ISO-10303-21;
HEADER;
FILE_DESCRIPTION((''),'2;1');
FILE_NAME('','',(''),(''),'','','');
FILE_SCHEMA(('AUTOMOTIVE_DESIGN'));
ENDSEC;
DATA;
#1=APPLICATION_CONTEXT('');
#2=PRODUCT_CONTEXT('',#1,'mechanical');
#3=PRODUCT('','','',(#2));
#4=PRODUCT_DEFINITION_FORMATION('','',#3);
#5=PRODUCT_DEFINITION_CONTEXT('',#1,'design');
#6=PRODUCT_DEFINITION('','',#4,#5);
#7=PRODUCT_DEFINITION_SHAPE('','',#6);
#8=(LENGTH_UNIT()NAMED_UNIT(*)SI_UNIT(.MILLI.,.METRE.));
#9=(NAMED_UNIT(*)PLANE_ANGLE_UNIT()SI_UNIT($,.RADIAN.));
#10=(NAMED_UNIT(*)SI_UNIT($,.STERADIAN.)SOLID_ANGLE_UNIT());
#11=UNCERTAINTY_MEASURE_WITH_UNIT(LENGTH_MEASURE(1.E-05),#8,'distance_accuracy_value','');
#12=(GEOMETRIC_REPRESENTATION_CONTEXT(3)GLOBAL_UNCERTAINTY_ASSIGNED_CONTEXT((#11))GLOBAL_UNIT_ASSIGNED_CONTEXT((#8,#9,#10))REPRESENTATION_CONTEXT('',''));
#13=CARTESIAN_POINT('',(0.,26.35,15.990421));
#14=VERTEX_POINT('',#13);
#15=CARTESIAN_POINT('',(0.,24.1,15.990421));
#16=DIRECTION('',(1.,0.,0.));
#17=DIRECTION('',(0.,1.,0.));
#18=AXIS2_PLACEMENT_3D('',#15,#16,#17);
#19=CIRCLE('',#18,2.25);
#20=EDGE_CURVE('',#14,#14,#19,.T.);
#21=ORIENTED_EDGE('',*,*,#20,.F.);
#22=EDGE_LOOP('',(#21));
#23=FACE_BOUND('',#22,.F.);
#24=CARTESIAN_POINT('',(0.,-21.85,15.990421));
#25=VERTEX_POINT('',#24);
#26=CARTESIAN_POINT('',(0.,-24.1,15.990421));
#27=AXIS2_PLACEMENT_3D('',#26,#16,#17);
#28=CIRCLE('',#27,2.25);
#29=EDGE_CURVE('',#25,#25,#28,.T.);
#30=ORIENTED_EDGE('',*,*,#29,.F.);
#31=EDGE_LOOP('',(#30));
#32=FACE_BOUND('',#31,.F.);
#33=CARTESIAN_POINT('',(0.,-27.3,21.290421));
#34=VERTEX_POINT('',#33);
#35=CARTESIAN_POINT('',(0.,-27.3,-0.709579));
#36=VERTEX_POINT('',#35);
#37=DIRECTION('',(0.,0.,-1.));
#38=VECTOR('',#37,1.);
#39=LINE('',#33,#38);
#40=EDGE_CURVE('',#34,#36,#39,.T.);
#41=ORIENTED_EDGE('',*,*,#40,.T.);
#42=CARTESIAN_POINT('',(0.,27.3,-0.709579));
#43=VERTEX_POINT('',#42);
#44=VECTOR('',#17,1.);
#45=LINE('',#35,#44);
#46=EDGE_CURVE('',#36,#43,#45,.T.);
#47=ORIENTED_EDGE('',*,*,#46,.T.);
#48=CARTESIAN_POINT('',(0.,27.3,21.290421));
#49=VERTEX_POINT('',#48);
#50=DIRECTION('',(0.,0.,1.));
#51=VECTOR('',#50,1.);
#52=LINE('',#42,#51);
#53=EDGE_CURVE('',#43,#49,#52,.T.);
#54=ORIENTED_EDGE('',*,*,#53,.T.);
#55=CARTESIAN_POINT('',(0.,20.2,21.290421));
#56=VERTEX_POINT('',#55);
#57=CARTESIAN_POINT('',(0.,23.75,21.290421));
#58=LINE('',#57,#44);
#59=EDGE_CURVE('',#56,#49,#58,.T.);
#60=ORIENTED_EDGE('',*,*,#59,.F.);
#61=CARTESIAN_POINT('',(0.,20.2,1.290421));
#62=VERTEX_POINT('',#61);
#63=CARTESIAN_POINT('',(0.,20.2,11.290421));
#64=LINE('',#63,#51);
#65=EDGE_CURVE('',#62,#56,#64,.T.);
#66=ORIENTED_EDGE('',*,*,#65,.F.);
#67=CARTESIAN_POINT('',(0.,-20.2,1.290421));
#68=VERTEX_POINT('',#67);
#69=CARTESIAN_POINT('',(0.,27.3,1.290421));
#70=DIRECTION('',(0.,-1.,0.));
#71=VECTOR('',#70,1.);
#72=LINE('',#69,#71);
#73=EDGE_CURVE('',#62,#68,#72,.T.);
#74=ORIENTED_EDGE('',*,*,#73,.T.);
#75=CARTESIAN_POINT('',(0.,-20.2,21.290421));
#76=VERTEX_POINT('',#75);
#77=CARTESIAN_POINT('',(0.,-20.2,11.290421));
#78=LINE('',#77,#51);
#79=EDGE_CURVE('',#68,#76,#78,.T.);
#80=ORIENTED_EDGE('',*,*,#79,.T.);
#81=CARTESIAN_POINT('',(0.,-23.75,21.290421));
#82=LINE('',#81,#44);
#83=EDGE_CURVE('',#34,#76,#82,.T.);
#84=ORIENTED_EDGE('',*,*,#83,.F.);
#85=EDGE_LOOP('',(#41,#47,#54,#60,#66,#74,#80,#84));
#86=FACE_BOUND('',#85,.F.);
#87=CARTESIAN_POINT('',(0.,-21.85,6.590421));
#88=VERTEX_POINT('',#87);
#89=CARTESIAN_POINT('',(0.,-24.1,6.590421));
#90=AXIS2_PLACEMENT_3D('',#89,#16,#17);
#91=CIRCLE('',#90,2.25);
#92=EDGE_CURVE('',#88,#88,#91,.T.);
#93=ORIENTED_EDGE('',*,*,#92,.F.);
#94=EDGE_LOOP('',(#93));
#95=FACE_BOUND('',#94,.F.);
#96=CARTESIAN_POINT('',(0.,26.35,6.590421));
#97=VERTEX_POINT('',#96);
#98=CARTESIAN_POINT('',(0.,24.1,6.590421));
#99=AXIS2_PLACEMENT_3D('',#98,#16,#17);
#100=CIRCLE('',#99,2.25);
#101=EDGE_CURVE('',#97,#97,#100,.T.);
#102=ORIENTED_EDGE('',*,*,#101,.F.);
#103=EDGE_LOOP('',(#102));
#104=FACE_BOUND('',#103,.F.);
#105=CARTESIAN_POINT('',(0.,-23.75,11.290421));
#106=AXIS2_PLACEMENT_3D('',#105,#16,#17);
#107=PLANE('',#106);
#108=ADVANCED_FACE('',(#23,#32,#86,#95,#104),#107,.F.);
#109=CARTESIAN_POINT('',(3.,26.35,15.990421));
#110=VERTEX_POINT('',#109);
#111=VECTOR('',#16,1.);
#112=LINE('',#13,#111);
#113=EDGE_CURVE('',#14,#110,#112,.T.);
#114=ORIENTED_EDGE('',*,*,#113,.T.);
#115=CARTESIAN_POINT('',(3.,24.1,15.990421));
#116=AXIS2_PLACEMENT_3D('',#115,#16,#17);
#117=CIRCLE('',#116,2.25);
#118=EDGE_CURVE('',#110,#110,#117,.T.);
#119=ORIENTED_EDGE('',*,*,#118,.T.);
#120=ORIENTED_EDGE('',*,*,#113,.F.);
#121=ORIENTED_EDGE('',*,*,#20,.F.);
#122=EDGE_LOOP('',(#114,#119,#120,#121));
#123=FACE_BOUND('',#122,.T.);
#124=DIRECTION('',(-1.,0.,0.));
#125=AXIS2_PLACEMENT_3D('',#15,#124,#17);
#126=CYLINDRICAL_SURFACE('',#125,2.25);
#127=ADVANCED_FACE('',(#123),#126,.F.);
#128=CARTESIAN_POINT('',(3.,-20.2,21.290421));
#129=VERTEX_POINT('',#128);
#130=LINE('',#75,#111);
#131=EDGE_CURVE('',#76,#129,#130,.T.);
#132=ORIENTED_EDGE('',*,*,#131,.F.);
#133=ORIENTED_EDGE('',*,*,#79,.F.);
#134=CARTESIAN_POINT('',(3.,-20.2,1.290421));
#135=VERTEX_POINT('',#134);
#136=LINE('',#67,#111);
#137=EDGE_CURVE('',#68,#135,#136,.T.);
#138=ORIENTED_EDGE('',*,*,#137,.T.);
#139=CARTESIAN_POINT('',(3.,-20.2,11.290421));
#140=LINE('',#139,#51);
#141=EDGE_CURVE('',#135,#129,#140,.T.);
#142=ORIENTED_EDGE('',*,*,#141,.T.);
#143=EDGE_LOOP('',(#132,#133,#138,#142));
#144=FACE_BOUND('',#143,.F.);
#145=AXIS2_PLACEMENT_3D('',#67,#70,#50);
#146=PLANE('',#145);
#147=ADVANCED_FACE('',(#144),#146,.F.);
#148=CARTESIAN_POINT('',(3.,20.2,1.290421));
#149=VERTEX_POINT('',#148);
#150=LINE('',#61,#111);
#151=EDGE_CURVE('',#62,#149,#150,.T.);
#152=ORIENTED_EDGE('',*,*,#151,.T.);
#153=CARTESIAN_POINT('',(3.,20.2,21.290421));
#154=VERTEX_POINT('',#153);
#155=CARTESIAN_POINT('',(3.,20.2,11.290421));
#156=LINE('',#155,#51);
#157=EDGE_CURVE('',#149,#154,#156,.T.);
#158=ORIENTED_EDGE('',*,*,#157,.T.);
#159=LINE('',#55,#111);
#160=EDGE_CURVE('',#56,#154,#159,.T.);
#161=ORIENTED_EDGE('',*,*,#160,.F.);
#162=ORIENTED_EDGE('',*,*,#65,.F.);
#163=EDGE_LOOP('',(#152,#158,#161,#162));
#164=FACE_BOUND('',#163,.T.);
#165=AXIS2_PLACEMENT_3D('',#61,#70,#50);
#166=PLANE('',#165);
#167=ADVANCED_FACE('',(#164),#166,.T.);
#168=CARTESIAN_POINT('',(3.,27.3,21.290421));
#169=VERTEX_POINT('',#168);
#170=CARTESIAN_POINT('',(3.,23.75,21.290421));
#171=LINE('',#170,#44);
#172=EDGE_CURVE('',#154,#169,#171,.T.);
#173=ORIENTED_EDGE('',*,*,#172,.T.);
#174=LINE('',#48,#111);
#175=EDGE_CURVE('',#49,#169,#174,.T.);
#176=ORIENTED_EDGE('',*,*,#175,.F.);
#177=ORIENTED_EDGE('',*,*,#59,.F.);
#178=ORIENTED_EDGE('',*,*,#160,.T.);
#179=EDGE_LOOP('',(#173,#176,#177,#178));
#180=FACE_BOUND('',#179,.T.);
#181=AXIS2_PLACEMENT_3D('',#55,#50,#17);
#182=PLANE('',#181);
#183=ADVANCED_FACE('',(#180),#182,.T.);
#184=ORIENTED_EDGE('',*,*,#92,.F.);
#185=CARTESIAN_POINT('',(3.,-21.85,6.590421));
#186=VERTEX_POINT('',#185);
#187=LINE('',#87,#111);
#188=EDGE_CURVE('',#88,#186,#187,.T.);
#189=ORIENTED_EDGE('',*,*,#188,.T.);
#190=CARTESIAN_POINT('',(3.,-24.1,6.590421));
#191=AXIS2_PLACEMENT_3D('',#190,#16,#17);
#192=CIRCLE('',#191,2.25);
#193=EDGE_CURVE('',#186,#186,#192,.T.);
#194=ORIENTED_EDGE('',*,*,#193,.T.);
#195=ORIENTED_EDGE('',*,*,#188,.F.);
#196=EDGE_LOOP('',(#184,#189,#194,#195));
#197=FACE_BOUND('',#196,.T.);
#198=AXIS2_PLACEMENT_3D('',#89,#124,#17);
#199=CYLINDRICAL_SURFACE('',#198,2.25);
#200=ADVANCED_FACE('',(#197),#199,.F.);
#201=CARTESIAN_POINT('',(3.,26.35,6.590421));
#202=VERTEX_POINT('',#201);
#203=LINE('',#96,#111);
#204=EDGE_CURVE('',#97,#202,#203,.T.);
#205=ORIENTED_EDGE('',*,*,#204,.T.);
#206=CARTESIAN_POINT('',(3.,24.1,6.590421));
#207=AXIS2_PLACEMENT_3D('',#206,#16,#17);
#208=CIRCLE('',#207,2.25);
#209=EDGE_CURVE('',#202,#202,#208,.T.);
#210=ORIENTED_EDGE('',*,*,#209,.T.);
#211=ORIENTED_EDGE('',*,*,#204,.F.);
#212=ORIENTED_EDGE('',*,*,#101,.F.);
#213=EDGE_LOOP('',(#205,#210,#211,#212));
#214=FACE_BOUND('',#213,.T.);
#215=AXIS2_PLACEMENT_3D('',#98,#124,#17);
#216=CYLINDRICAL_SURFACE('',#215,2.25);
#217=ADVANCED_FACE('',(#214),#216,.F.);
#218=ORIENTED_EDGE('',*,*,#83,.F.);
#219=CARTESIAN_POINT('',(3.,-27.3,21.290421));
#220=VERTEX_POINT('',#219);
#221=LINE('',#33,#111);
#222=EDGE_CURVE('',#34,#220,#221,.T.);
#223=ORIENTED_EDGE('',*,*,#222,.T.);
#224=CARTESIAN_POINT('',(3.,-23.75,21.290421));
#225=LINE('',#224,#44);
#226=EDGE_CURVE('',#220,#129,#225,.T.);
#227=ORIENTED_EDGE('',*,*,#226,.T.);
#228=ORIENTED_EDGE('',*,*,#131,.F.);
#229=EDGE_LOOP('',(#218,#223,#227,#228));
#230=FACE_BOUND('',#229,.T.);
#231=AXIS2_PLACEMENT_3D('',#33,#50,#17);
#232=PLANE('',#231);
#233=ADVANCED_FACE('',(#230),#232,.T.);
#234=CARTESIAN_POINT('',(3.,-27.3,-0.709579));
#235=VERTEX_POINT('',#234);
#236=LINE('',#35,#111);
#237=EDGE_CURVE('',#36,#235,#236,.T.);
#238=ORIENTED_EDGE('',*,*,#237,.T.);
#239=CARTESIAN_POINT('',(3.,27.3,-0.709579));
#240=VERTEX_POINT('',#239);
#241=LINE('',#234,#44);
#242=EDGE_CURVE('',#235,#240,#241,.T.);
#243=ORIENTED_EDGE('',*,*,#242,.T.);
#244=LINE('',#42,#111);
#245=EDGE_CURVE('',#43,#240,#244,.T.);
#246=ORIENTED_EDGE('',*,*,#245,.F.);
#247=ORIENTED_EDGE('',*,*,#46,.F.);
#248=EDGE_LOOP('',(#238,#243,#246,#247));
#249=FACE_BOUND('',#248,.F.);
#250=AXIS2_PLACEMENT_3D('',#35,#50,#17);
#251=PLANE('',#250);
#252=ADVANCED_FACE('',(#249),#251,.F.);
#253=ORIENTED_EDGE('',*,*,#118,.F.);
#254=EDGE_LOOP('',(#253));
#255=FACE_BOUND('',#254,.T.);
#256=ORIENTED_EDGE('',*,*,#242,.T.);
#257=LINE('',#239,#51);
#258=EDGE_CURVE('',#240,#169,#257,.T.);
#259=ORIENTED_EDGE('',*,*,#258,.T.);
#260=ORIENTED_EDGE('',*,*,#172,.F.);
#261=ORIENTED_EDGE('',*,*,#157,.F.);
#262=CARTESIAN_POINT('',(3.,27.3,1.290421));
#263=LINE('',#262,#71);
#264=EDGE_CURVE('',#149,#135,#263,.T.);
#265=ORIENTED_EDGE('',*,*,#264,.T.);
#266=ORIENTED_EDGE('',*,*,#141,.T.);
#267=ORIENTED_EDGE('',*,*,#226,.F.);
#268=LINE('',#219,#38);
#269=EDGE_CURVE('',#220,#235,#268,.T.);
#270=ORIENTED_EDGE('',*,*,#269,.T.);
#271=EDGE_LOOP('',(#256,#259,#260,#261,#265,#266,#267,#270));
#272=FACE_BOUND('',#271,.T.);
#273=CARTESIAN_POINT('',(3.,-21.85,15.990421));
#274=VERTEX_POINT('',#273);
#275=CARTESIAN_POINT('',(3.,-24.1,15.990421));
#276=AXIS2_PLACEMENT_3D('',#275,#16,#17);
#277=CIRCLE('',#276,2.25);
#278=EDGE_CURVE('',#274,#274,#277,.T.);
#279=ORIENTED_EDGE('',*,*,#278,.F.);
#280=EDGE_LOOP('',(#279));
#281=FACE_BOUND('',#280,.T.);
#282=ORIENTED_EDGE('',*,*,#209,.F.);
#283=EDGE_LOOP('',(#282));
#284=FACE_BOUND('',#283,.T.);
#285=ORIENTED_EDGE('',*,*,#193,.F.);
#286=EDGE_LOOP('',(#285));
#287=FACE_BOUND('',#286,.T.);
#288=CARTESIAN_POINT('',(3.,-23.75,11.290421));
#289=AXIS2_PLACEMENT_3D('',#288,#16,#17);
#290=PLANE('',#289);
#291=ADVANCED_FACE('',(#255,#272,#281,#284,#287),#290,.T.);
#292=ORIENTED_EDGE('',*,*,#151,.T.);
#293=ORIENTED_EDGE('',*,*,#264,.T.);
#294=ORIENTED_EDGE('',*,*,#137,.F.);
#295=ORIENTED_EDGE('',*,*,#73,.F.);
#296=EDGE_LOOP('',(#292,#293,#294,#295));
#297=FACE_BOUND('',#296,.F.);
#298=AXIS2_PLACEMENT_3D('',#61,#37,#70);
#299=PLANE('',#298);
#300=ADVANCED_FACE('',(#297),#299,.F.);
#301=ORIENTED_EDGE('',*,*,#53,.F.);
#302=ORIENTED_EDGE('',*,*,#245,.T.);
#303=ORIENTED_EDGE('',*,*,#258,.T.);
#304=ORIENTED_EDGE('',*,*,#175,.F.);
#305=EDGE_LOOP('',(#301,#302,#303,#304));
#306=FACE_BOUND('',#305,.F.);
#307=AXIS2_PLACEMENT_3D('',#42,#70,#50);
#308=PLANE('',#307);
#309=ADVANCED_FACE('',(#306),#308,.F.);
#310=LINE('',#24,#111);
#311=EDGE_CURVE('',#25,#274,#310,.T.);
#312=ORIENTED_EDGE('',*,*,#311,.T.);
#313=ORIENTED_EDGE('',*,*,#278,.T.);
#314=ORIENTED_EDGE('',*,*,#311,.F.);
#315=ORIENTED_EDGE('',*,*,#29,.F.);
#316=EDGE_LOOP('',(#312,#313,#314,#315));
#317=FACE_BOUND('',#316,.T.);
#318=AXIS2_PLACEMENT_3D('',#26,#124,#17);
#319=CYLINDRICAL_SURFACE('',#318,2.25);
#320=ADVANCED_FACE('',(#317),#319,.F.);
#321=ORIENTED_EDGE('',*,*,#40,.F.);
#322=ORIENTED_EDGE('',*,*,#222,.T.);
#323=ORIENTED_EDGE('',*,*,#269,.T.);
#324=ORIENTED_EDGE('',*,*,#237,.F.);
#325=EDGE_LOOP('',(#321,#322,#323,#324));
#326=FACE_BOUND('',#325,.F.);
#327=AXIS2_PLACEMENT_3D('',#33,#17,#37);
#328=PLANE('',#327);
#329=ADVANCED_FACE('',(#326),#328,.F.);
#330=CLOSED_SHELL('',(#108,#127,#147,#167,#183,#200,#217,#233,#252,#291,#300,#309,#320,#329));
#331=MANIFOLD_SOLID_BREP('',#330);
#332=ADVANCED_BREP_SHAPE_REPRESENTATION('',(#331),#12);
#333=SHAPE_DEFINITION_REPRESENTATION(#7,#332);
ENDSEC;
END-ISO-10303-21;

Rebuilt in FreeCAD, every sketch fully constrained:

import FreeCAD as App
import Part
import Sketcher

doc = App.newDocument("Part")
params = doc.addObject("Spreadsheet::Sheet", "Params")
for row, (alias, value) in enumerate([
    ("sketch1_diameter", "4.5 mm"),
    ("sketch1_height", "22 mm"),
    ("sketch1_height2", "20 mm"),
    ("sketch1_width", "54.6 mm"),
    ("sketch1_width2", "7.1 mm"),
    ("pad1_length", "3 mm"),
], start=1):
    params.set(f"A{row}", alias)
    params.set(f"B{row}", "=" + value)
    params.setAlias(f"B{row}", alias)

body = doc.addObject("PartDesign::Body", "Body")

# Sketch on YZ plane
sketch1 = doc.addObject("Sketcher::SketchObject", "Sketch")
body.addObject(sketch1)
sketch1.AttachmentSupport = (doc.YZ_Plane, [""])
sketch1.MapMode = "FlatFace"
sketch1.addGeometry([
    Part.LineSegment(App.Vector(-27.3, 21.290421, 0), App.Vector(-27.3, -0.709579, 0)),  # 0
    Part.LineSegment(App.Vector(-27.3, -0.709579, 0), App.Vector(27.3, -0.709579, 0)),  # 1
    Part.LineSegment(App.Vector(27.3, -0.709579, 0), App.Vector(27.3, 21.290421, 0)),  # 2
    Part.LineSegment(App.Vector(27.3, 21.290421, 0), App.Vector(20.2, 21.290421, 0)),  # 3
    Part.LineSegment(App.Vector(20.2, 21.290421, 0), App.Vector(20.2, 1.290421, 0)),  # 4
    Part.LineSegment(App.Vector(20.2, 1.290421, 0), App.Vector(-20.2, 1.290421, 0)),  # 5
    Part.LineSegment(App.Vector(-20.2, 1.290421, 0), App.Vector(-20.2, 21.290421, 0)),  # 6
    Part.LineSegment(App.Vector(-20.2, 21.290421, 0), App.Vector(-27.3, 21.290421, 0)),  # 7
    Part.Circle(App.Vector(-24.1, 6.590421, 0), App.Vector(0, 0, 1), 2.25),  # 8
    Part.Circle(App.Vector(24.1, 6.590421, 0), App.Vector(0, 0, 1), 2.25),  # 9
    Part.Circle(App.Vector(-24.1, 15.990421, 0), App.Vector(0, 0, 1), 2.25),  # 10
    Part.Circle(App.Vector(24.1, 15.990421, 0), App.Vector(0, 0, 1), 2.25),  # 11
], False)
sketch1.addConstraint([
    Sketcher.Constraint("Coincident", 0, 2, 1, 1),
    Sketcher.Constraint("Coincident", 1, 2, 2, 1),
    Sketcher.Constraint("Coincident", 2, 2, 3, 1),
    Sketcher.Constraint("Coincident", 3, 2, 4, 1),
    Sketcher.Constraint("Coincident", 4, 2, 5, 1),
    Sketcher.Constraint("Coincident", 5, 2, 6, 1),
    Sketcher.Constraint("Coincident", 6, 2, 7, 1),
    Sketcher.Constraint("Coincident", 7, 2, 0, 1),
    Sketcher.Constraint("Vertical", 0),
    Sketcher.Constraint("Horizontal", 1),
    Sketcher.Constraint("Vertical", 2),
    Sketcher.Constraint("Horizontal", 3),
    Sketcher.Constraint("Vertical", 4),
    Sketcher.Constraint("Horizontal", 5),
    Sketcher.Constraint("Vertical", 6),
    Sketcher.Constraint("Horizontal", 7),
    Sketcher.Constraint("Equal", 8, 9),
    Sketcher.Constraint("Equal", 9, 10),
    Sketcher.Constraint("Equal", 10, 11),
    Sketcher.Constraint("Symmetric", 8, 3, 9, 3, -2),
    Sketcher.Constraint("Symmetric", 10, 3, 11, 3, -2),
    Sketcher.Constraint("Symmetric", 3, 2, 6, 2, -2),
    Sketcher.Constraint("Vertical", 8, 3, 10, 3),
    Sketcher.Constraint("Equal", 3, 7),
    Sketcher.Constraint("Diameter", 8, 4.5),
    Sketcher.Constraint("DistanceY", 0, 2, 0, 1, 22.0),
    Sketcher.Constraint("DistanceY", 4, 2, 4, 1, 20.0),
    Sketcher.Constraint("DistanceX", 1, 1, 1, 2, 54.6),
    Sketcher.Constraint("DistanceX", 3, 2, 3, 1, 7.1),
    Sketcher.Constraint("DistanceX", 8, 3, -1, 1, 24.1),
    Sketcher.Constraint("DistanceY", 8, 3, 10, 3, 9.4),
    Sketcher.Constraint("DistanceY", 0, 2, 8, 3, 7.3),
    Sketcher.Constraint("DistanceY", -1, 1, 8, 3, 6.590421),
])
sketch1.setExpression("Constraints[24]", "Params.sketch1_diameter")
sketch1.setExpression("Constraints[25]", "Params.sketch1_height")
sketch1.setExpression("Constraints[26]", "Params.sketch1_height2")
sketch1.setExpression("Constraints[27]", "Params.sketch1_width")
sketch1.setExpression("Constraints[28]", "Params.sketch1_width2")
pad1 = doc.addObject("PartDesign::Pad", "Pad")
body.addObject(pad1)
pad1.Profile = sketch1
pad1.setExpression("Length", "Params.pad1_length")

doc.recompute()
